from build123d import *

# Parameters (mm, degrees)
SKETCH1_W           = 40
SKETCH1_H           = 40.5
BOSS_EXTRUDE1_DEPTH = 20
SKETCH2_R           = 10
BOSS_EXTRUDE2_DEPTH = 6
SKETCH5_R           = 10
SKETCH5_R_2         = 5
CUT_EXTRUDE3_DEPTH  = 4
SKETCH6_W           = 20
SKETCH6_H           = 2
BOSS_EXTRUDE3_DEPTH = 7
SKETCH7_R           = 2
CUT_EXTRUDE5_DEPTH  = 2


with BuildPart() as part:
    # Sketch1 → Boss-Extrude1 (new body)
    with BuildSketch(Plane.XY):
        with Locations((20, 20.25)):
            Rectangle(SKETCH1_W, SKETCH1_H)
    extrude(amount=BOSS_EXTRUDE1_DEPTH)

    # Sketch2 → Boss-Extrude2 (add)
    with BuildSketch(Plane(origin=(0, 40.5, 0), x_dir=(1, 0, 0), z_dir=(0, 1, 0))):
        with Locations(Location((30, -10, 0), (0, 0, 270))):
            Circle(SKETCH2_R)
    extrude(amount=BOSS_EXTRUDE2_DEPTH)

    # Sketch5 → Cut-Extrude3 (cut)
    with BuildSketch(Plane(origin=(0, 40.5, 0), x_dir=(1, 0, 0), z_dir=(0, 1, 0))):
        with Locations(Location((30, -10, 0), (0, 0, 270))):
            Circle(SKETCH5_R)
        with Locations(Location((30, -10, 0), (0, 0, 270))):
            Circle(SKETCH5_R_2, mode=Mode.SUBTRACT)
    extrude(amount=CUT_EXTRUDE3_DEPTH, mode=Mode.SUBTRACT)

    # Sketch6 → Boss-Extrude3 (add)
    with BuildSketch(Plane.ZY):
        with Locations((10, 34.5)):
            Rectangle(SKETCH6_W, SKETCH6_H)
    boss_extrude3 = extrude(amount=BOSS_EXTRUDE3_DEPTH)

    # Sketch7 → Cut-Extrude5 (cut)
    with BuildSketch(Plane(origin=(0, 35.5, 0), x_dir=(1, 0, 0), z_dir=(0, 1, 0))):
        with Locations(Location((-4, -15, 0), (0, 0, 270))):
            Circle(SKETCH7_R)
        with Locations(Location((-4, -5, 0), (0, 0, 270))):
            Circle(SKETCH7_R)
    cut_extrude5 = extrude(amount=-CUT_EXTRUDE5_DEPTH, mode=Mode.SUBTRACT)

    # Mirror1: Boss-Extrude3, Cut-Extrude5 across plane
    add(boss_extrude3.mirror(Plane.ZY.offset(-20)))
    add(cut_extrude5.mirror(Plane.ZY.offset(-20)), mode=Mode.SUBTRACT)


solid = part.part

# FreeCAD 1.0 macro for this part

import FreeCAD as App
import Part
import Sketcher


def add_polygon(sketch, points):
    """Adds a closed chain of lines whose ends are joined by coincident constraints."""
    first, n = sketch.GeometryCount, len(points)
    for a, b in zip(points, points[1:] + points[:1]):
        sketch.addGeometry(Part.LineSegment(App.Vector(*a, 0), App.Vector(*b, 0)), False)
    for i in range(n):
        sketch.addConstraint(Sketcher.Constraint("Coincident", first + i, 2, first + (i + 1) % n, 1))

doc = App.newDocument("Part")
body = doc.addObject("PartDesign::Body", "Body")

# Sketch on XY plane
sketch1 = body.newObject("Sketcher::SketchObject", "Sketch")
sketch1.AttachmentSupport = (doc.getObject("XY_Plane"), [""])
sketch1.MapMode = "FlatFace"
add_polygon(sketch1, [(0, 40), (0, 0), (40, 0), (40, 40)])  # lines 0-3
sketch1.addConstraint([
    Sketcher.Constraint("Vertical", 0),
    Sketcher.Constraint("Horizontal", 1),
    Sketcher.Constraint("Vertical", 2),
    Sketcher.Constraint("Horizontal", 3),
    Sketcher.Constraint("Coincident", 0, 2, -1, 1),
    Sketcher.Constraint("DistanceX", 1, 1, 1, 2, 40.0),
    Sketcher.Constraint("DistanceY", 0, 2, 0, 1, 40.5),
])
pad1 = body.newObject("PartDesign::Pad", "Pad")
pad1.Profile = sketch1
pad1.Length = 20

# Sketch on XZ plane
sketch2 = body.newObject("Sketcher::SketchObject", "Sketch001")
sketch2.AttachmentSupport = (doc.getObject("XZ_Plane"), [""])
sketch2.MapMode = "FlatFace"
sketch2.AttachmentOffset = App.Placement(App.Vector(0, 0, -40.5), App.Rotation())
sketch2.addGeometry(Part.Circle(App.Vector(30, 10, 0), App.Vector(0, 0, 1), 10), False)
sketch2.addConstraint([
    Sketcher.Constraint("Diameter", 0, 20.0),
    Sketcher.Constraint("DistanceX", -1, 1, 0, 3, 30.0),
    Sketcher.Constraint("DistanceY", -1, 1, 0, 3, 10.0),
])
pad2 = body.newObject("PartDesign::Pad", "Pad001")
pad2.Profile = sketch2
pad2.Length = 6
pad2.Reversed = True

# Sketch on XZ plane
sketch3 = body.newObject("Sketcher::SketchObject", "Sketch002")
sketch3.AttachmentSupport = (doc.getObject("XZ_Plane"), [""])
sketch3.MapMode = "FlatFace"
sketch3.AttachmentOffset = App.Placement(App.Vector(0, 0, -40.5), App.Rotation())
sketch3.addGeometry([
    Part.Circle(App.Vector(30, 10, 0), App.Vector(0, 0, 1), 10),
    Part.Circle(App.Vector(30, 10, 0), App.Vector(0, 0, 1), 5),
], False)
sketch3.addConstraint([
    Sketcher.Constraint("Coincident", 1, 3, 0, 3),
    Sketcher.Constraint("Diameter", 0, 20.0),
    Sketcher.Constraint("Diameter", 1, 10.0),
    Sketcher.Constraint("DistanceX", -1, 1, 0, 3, 30.0),
    Sketcher.Constraint("DistanceY", -1, 1, 0, 3, 10.0),
])
pocket1 = body.newObject("PartDesign::Pocket", "Pocket")
pocket1.Profile = sketch3
pocket1.Length = 4

# Sketch on YZ plane
sketch4 = body.newObject("Sketcher::SketchObject", "Sketch003")
sketch4.AttachmentSupport = (doc.getObject("YZ_Plane"), [""])
sketch4.MapMode = "FlatFace"
add_polygon(sketch4, [(35.5, 0), (33.5, 0), (33.5, 20), (35.5, 20)])  # lines 0-3
sketch4.addConstraint([
    Sketcher.Constraint("Horizontal", 0),
    Sketcher.Constraint("Vertical", 1),
    Sketcher.Constraint("Horizontal", 2),
    Sketcher.Constraint("Vertical", 3),
    Sketcher.Constraint("PointOnObject", 0, 2, -1),
    Sketcher.Constraint("DistanceX", 0, 2, 0, 1, 2.0),
    Sketcher.Constraint("DistanceY", 1, 1, 1, 2, 20.0),
    Sketcher.Constraint("DistanceX", -1, 1, 0, 2, 33.5),
])
pad3 = body.newObject("PartDesign::Pad", "Pad002")
pad3.Profile = sketch4
pad3.Length = 7
pad3.Reversed = True

# Sketch on XZ plane
sketch5 = body.newObject("Sketcher::SketchObject", "Sketch004")
sketch5.AttachmentSupport = (doc.getObject("XZ_Plane"), [""])
sketch5.MapMode = "FlatFace"
sketch5.AttachmentOffset = App.Placement(App.Vector(0, 0, -35.5), App.Rotation())
sketch5.addGeometry([
    Part.Circle(App.Vector(-4, 15, 0), App.Vector(0, 0, 1), 2),
    Part.Circle(App.Vector(-4, 5, 0), App.Vector(0, 0, 1), 2),
], False)
sketch5.addConstraint([
    Sketcher.Constraint("Equal", 0, 1),
    Sketcher.Constraint("Vertical", 0, 3, 1, 3),
    Sketcher.Constraint("Diameter", 0, 4.0),
    Sketcher.Constraint("DistanceX", 0, 3, -1, 1, 4.0),
    Sketcher.Constraint("DistanceY", -1, 1, 0, 3, 15.0),
    Sketcher.Constraint("DistanceY", -1, 1, 1, 3, 5.0),
])
pocket2 = body.newObject("PartDesign::Pocket", "Pocket001")
pocket2.Profile = sketch5
pocket2.Length = 2
pocket2.Reversed = True
doc.recompute()

datumplane = body.newObject("PartDesign::Plane", "DatumPlane")
datumplane.AttachmentSupport = (doc.getObject("YZ_Plane"), [""])
datumplane.MapMode = "FlatFace"
datumplane.AttachmentOffset = App.Placement(App.Vector(0, 0, 20), App.Rotation())
mirrored = body.newObject("PartDesign::Mirrored", "Mirrored")
mirrored.Originals = [pad3, pocket2]
mirrored.MirrorPlane = (datumplane, [""])
body.Tip = mirrored

doc.recompute()
